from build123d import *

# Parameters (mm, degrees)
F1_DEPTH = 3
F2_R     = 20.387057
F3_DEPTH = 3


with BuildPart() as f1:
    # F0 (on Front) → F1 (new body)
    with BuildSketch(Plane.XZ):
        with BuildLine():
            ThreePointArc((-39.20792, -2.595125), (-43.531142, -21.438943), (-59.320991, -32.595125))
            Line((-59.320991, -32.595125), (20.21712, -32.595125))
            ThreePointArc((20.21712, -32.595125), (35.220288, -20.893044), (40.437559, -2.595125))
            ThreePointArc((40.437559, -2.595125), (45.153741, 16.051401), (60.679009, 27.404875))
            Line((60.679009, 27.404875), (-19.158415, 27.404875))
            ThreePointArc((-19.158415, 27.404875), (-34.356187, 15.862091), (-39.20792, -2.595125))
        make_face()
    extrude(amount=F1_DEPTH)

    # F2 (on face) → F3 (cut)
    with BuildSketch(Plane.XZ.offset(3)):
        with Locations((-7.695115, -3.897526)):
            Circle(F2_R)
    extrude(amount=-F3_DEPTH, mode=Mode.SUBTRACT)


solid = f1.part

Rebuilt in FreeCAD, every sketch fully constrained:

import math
import FreeCAD as App
import Part
import Sketcher

V = App.Vector

doc = App.newDocument("Part")
body = doc.addObject("PartDesign::Body", "Body")

sketch1 = doc.addObject("Sketcher::SketchObject", "Sketch")
body.addObject(sketch1)
sketch1.AttachmentSupport = (doc.XZ_Plane, [""])
sketch1.MapMode = "FlatFace"
sketch1.addGeometry(Part.ArcOfCircle(Part.Circle(V(-66.01996, -6.361637, 0), V(0, 0, 1), 27.075304), math.radians(-75.675113), math.radians(7.996491)), False)
sketch1.addGeometry(Part.LineSegment(V(-59.320991, -32.595125, 0), V(20.21712, -32.595125, 0)), False)
sketch1.addGeometry(Part.ArcOfCircle(Part.Circle(V(9.781543, -3.746957, 0), V(0, 0, 1), 30.677648), math.radians(-70.112844), math.radians(2.15175)), False)
sketch1.addGeometry(Part.ArcOfCircle(Part.Circle(V(68.671834, 0.183391, 0), V(0, 0, 1), 28.370662), math.radians(106.363396), math.radians(185.620343)), False)
sketch1.addGeometry(Part.LineSegment(V(60.679009, 27.404875, 0), V(-19.158415, 27.404875, 0)), False)
sketch1.addGeometry(Part.ArcOfCircle(Part.Circle(V(-10.022224, -0.400706, 0), V(0, 0, 1), 29.268077), math.radians(108.189179), math.radians(184.299874)), False)
sketch1.addConstraint(Sketcher.Constraint("Coincident", 0, 1, 1, 1))
sketch1.addConstraint(Sketcher.Constraint("Coincident", 1, 2, 2, 1))
sketch1.addConstraint(Sketcher.Constraint("Coincident", 2, 2, 3, 2))
sketch1.addConstraint(Sketcher.Constraint("Coincident", 3, 1, 4, 1))
sketch1.addConstraint(Sketcher.Constraint("Coincident", 4, 2, 5, 1))
sketch1.addConstraint(Sketcher.Constraint("Coincident", 5, 2, 0, 2))
sketch1.addConstraint(Sketcher.Constraint("Horizontal", 1))
sketch1.addConstraint(Sketcher.Constraint("Horizontal", 4))
sketch1.addConstraint(Sketcher.Constraint("Horizontal", 2, 2, 5, 2))
sketch1.addConstraint(Sketcher.Constraint("DistanceY", 1, 2, 2, 2, 30.0))
sketch1.addConstraint(Sketcher.Constraint("DistanceY", 2, 2, 3, 1, 30.0))
sketch1.addConstraint(Sketcher.Constraint("Radius", 3, 28.370662))
sketch1.addConstraint(Sketcher.Constraint("Radius", 0, 27.075304))
sketch1.addConstraint(Sketcher.Constraint("Radius", 2, 30.677648))
sketch1.addConstraint(Sketcher.Constraint("Radius", 5, 29.268077))
sketch1.addConstraint(Sketcher.Constraint("DistanceX", 1, 1, 1, 2, 79.538111))
sketch1.addConstraint(Sketcher.Constraint("DistanceX", 4, 2, 4, 1, 79.837424))
sketch1.addConstraint(Sketcher.Constraint("DistanceX", 0, 3, -1, 1, 66.01996))
sketch1.addConstraint(Sketcher.Constraint("DistanceY", -1, 1, 3, 3, 0.183391))
sketch1.addConstraint(Sketcher.Constraint("DistanceX", 0, 1, -1, 1, 59.320991))
sketch1.addConstraint(Sketcher.Constraint("DistanceX", -1, 1, 2, 2, 40.437559))
sketch1.addConstraint(Sketcher.Constraint("DistanceX", -1, 1, 3, 1, 60.679009))
pad1 = doc.addObject("PartDesign::Pad", "Pad")
body.addObject(pad1)
pad1.Profile = sketch1
pad1.Length = 3

sketch2 = doc.addObject("Sketcher::SketchObject", "Sketch001")
body.addObject(sketch2)
sketch2.AttachmentSupport = (doc.XZ_Plane, [""])
sketch2.MapMode = "FlatFace"
sketch2.AttachmentOffset = App.Placement(V(0, 0, 3), App.Rotation())
sketch2.addGeometry(Part.Circle(V(-7.695115, -3.897526, 0), V(0, 0, 1), 20.387057), False)
sketch2.addConstraint(Sketcher.Constraint("Diameter", 0, 40.774114))
sketch2.addConstraint(Sketcher.Constraint("DistanceX", 0, 3, -1, 1, 7.695115))
sketch2.addConstraint(Sketcher.Constraint("DistanceY", 0, 3, -1, 1, 3.897526))
pocket1 = doc.addObject("PartDesign::Pocket", "Pocket")
body.addObject(pocket1)
pocket1.Profile = sketch2
pocket1.Length = 3

doc.recompute()
